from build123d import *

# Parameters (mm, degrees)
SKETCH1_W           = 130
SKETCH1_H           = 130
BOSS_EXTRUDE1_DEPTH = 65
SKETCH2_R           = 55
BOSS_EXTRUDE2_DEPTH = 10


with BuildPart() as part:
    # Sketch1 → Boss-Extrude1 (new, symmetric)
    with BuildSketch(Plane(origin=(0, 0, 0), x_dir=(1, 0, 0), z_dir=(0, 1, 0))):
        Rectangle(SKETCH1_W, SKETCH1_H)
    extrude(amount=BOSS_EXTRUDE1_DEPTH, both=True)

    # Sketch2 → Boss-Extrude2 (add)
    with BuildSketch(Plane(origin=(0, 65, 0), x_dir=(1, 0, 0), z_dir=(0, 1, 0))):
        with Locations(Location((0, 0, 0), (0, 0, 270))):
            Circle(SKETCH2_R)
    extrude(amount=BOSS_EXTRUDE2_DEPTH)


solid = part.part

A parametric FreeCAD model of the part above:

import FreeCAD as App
import Part
import Sketcher

V = App.Vector


def add_polygon(sketch, points):
    """Adds a closed chain of lines whose ends are joined by coincident constraints."""
    first, n = sketch.GeometryCount, len(points)
    for a, b in zip(points, points[1:] + points[:1]):
        sketch.addGeometry(Part.LineSegment(App.Vector(*a, 0), App.Vector(*b, 0)), False)
    for i in range(n):
        sketch.addConstraint(Sketcher.Constraint("Coincident", first + i, 2, first + (i + 1) % n, 1))

doc = App.newDocument("Part")
body = doc.addObject("PartDesign::Body", "Body")

sketch1 = doc.addObject("Sketcher::SketchObject", "Sketch")
body.addObject(sketch1)
sketch1.AttachmentSupport = (doc.XZ_Plane, [""])
sketch1.MapMode = "FlatFace"
add_polygon(sketch1, [(-65, -65), (-65, 65), (65, 65), (65, -65)])
sketch1.addConstraint([
    Sketcher.Constraint("Vertical", 0),
    Sketcher.Constraint("Horizontal", 1),
    Sketcher.Constraint("Vertical", 2),
    Sketcher.Constraint("Horizontal", 3),
    Sketcher.Constraint("Symmetric", 0, 2, 2, 2, -1, 1),
    Sketcher.Constraint("Equal", 3, 0),
    Sketcher.Constraint("DistanceX", 1, 1, 1, 2, 130.0),
])
pad1 = doc.addObject("PartDesign::Pad", "Pad")
body.addObject(pad1)
pad1.Profile = sketch1
pad1.Length = 130
pad1.Midplane = True

sketch2 = doc.addObject("Sketcher::SketchObject", "Sketch001")
body.addObject(sketch2)
sketch2.AttachmentSupport = (doc.XZ_Plane, [""])
sketch2.MapMode = "FlatFace"
sketch2.AttachmentOffset = App.Placement(V(0, 0, -65), App.Rotation())
sketch2.addGeometry(Part.Circle(V(0, 0, 0), V(0, 0, 1), 55), False)
sketch2.addConstraint([
    Sketcher.Constraint("Coincident", 0, 3, -1, 1),
    Sketcher.Constraint("Diameter", 0, 110.0),
])
pad2 = doc.addObject("PartDesign::Pad", "Pad001")
body.addObject(pad2)
pad2.Profile = sketch2
pad2.Length = 10
pad2.Reversed = True

doc.recompute()
